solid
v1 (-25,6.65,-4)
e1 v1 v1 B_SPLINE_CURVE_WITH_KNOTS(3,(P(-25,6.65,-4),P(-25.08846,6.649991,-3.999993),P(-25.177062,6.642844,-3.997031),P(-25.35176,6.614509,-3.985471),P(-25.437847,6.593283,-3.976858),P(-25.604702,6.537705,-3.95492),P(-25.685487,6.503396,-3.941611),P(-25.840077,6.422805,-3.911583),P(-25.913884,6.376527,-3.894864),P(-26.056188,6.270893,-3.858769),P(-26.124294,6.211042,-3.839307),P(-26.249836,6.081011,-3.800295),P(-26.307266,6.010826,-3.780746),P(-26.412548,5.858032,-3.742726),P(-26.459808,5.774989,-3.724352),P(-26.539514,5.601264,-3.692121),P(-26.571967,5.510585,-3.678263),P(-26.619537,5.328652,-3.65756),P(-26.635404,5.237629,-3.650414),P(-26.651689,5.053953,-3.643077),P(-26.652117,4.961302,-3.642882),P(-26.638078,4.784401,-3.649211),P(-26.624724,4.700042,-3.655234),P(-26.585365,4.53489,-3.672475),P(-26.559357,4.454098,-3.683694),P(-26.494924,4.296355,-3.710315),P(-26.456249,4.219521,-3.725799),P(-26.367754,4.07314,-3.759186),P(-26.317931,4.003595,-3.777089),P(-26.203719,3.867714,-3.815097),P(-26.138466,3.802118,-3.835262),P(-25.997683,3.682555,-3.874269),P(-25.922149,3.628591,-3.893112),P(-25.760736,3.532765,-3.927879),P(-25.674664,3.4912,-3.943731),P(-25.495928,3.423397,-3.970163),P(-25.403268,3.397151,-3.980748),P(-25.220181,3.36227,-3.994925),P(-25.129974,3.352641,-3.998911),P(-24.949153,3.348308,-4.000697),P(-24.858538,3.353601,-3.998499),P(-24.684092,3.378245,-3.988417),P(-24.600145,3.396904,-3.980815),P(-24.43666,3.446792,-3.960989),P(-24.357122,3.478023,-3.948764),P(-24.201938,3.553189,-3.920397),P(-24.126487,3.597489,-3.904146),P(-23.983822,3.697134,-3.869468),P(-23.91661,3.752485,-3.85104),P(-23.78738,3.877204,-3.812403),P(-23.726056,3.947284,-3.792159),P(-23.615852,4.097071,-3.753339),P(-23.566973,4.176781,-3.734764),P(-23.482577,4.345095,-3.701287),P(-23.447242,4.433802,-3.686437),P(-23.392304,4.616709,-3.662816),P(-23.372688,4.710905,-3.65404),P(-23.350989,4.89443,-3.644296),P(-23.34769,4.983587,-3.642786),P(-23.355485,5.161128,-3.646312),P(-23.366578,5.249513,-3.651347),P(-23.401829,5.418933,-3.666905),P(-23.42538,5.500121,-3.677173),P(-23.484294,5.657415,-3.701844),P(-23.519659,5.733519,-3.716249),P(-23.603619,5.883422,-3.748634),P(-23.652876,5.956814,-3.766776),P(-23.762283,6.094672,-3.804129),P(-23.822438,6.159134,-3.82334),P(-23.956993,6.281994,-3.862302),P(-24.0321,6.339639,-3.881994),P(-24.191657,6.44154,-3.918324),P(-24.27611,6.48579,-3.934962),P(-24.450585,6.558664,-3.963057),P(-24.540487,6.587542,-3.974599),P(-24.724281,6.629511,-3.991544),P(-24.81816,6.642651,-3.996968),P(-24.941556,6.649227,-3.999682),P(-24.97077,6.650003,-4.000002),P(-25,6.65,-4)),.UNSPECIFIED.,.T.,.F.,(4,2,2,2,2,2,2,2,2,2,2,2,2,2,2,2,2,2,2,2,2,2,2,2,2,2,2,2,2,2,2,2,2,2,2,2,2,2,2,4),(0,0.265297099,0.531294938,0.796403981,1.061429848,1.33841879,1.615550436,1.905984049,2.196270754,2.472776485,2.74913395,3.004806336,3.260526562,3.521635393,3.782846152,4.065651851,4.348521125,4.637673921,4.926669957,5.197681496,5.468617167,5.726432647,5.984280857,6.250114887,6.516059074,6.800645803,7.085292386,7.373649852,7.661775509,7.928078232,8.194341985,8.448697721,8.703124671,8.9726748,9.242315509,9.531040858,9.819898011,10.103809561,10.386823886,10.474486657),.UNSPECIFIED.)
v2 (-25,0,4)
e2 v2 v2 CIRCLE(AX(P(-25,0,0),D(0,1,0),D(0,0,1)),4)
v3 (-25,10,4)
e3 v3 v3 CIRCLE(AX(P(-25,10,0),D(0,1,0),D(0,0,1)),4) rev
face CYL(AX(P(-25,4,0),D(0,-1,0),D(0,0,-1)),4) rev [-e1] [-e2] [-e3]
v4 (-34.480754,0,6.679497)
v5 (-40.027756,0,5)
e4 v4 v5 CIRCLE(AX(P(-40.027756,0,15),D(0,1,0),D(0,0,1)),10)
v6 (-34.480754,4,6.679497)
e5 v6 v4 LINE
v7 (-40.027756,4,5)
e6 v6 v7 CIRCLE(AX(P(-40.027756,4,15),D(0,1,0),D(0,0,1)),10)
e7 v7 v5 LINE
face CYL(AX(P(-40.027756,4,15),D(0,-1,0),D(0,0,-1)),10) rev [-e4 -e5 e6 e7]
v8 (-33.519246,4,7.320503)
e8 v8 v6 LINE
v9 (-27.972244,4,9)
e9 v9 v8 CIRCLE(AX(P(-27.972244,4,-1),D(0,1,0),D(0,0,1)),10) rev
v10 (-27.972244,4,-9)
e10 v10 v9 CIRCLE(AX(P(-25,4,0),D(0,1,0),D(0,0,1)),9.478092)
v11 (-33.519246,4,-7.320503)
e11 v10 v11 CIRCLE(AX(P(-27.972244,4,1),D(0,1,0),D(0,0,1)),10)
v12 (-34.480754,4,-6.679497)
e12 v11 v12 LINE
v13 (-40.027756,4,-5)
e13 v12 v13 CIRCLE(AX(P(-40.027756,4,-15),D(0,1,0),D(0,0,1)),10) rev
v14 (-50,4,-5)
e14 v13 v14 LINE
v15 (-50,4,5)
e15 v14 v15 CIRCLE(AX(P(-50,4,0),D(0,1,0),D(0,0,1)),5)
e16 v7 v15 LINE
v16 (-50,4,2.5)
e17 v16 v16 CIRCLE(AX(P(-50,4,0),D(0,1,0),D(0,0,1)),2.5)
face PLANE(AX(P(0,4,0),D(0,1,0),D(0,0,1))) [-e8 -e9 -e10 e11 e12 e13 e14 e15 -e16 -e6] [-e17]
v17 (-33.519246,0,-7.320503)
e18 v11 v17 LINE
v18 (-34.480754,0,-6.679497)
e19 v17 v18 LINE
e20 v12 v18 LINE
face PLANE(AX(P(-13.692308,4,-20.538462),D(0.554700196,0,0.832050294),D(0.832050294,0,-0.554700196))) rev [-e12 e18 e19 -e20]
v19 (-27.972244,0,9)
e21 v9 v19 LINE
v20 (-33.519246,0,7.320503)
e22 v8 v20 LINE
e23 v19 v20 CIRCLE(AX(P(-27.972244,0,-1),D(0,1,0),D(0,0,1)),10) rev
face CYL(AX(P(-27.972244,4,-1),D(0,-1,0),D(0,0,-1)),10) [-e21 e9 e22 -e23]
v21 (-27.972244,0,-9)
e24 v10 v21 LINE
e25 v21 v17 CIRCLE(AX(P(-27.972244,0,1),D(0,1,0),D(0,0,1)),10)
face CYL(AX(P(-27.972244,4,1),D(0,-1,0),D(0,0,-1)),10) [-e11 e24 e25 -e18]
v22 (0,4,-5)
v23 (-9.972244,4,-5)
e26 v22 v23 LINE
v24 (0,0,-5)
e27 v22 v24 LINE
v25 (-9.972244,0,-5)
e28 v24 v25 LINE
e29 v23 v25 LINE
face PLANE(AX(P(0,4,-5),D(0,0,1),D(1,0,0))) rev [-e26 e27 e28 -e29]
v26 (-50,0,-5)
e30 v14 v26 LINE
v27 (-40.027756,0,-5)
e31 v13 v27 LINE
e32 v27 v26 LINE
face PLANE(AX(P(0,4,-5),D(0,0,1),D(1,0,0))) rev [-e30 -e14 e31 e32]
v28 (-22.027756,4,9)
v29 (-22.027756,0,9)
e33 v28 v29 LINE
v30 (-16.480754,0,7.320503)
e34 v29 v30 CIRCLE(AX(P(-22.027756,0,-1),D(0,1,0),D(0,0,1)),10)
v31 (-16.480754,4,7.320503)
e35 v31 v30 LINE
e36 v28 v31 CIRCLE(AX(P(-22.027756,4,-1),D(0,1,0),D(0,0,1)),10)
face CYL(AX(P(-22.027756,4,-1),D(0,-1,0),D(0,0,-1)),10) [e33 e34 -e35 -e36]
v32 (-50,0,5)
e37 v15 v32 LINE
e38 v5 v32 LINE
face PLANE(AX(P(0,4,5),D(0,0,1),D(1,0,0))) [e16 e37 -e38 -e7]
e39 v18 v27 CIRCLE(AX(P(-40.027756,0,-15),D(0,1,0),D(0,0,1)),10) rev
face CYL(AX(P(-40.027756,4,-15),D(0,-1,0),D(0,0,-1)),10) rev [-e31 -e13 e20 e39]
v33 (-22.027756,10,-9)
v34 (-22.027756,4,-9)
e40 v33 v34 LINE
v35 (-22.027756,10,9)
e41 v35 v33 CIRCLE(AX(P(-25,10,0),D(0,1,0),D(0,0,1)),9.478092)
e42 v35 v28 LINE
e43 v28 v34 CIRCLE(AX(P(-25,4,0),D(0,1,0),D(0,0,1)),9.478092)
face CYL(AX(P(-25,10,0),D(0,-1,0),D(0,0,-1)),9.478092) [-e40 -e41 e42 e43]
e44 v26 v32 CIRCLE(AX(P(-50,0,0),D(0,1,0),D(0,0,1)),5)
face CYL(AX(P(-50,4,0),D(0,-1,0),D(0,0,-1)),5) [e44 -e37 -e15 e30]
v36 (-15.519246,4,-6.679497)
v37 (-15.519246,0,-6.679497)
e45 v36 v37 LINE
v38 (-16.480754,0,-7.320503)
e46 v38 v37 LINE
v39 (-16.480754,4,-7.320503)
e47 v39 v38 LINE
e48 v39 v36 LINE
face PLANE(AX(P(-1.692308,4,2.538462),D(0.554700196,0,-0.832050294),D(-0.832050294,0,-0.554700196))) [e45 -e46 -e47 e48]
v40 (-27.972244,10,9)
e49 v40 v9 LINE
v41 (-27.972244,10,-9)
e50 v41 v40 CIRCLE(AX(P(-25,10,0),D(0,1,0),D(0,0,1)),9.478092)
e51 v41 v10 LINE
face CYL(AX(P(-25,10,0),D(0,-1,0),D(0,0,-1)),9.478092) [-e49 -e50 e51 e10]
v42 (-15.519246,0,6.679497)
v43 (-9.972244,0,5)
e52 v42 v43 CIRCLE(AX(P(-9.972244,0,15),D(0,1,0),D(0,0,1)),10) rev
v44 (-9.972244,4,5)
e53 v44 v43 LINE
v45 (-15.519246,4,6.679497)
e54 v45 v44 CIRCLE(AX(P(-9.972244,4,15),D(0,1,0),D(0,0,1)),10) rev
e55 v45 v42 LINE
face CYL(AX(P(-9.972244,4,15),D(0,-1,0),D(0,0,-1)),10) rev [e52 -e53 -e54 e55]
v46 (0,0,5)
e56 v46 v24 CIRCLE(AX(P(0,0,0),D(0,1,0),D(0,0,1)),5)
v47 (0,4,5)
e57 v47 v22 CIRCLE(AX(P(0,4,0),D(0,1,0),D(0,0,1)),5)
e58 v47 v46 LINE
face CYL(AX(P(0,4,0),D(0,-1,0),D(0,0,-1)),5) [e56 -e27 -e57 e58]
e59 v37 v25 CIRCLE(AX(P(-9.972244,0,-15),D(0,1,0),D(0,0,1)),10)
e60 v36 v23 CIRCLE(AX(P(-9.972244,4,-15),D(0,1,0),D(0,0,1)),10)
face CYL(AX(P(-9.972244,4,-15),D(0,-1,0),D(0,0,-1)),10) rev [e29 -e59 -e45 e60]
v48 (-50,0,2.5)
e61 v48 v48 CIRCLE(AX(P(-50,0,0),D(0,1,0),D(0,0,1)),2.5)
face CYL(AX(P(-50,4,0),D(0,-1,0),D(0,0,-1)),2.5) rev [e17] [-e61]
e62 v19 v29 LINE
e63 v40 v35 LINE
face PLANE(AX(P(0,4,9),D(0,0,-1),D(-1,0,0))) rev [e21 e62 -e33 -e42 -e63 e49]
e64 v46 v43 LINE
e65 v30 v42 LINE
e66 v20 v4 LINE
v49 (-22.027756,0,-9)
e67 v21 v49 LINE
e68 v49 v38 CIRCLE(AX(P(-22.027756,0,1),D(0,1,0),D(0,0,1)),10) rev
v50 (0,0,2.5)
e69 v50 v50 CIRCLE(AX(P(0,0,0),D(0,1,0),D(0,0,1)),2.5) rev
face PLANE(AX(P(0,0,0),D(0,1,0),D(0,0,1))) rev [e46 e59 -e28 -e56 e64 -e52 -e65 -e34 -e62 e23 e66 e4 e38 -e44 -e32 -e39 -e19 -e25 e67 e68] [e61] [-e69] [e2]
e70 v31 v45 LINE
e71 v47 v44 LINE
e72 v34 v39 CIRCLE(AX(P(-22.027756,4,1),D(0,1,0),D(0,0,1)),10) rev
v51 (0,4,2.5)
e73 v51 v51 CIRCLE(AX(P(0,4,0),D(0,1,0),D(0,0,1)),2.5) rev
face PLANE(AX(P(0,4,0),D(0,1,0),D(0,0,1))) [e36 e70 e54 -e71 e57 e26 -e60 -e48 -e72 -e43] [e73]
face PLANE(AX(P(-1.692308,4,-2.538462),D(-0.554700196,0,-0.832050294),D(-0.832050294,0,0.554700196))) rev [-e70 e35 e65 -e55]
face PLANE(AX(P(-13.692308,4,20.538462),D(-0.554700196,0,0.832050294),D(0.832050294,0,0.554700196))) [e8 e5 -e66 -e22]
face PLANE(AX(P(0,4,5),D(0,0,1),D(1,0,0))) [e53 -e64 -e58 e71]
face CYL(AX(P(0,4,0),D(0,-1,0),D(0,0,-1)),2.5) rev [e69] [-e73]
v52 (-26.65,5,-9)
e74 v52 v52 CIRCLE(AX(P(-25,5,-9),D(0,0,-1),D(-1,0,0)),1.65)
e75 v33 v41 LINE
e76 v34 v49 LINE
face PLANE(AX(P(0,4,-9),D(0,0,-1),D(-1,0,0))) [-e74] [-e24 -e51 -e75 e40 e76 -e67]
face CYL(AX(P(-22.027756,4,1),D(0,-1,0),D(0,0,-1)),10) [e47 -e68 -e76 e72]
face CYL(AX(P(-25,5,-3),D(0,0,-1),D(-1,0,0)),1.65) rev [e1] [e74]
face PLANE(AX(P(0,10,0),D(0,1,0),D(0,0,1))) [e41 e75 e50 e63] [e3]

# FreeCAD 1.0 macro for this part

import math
import FreeCAD as App
import Part
import Sketcher
from FreeCAD import Vector
Q = App.Units.Quantity

doc = App.newDocument("Part")
body = doc.addObject("PartDesign::Body", "Body")

sketch1 = body.newObject("Sketcher::SketchObject", "Sketch")
sketch1.AttachmentSupport = (doc.getObject("XZ_Plane"), [""])
sketch1.MapMode = "FlatFace"
sketch1.addGeometry([
    Part.ArcOfCircle(Part.Circle(Vector(0, 0, 0), Vector(0, 0, 1), 5), math.radians(0), math.radians(90)),
    Part.ArcOfCircle(Part.Circle(Vector(0, 0, 0), Vector(0, 0, 1), 5), math.radians(-90), math.radians(0)),
    Part.LineSegment(Vector(0, -5, 0), Vector(-10, -5, 0)),
    Part.ArcOfCircle(Part.Circle(Vector(-10, -15, 0), Vector(0, 0, 1), 10), math.radians(90), math.radians(124)),
    Part.LineSegment(Vector(-15.5, -6.7, 0), Vector(-16.5, -7.3, 0)),
    Part.ArcOfCircle(Part.Circle(Vector(-22, 1, 0), Vector(0, 0, 1), 10), math.radians(-90), math.radians(-56)),
    Part.LineSegment(Vector(-22, -9, 0), Vector(-28, -9, 0)),
    Part.ArcOfCircle(Part.Circle(Vector(-28, 1, 0), Vector(0, 0, 1), 10), math.radians(-124), math.radians(-90)),
    Part.LineSegment(Vector(-33.5, -7.3, 0), Vector(-34.5, -6.7, 0)),
    Part.ArcOfCircle(Part.Circle(Vector(-40, -15, 0), Vector(0, 0, 1), 10), math.radians(56), math.radians(90)),
    Part.LineSegment(Vector(-40, -5, 0), Vector(-50, -5, 0)),
    Part.ArcOfCircle(Part.Circle(Vector(-50, 0, 0), Vector(0, 0, 1), 5), math.radians(180), math.radians(270)),
    Part.ArcOfCircle(Part.Circle(Vector(-50, 0, 0), Vector(0, 0, 1), 5), math.radians(90), math.radians(180)),
    Part.LineSegment(Vector(-50, 5, 0), Vector(-40, 5, 0)),
    Part.ArcOfCircle(Part.Circle(Vector(-40, 15, 0), Vector(0, 0, 1), 10), math.radians(-90), math.radians(-56)),
    Part.LineSegment(Vector(-34.5, 6.7, 0), Vector(-33.5, 7.3, 0)),
    Part.ArcOfCircle(Part.Circle(Vector(-28, -1, 0), Vector(0, 0, 1), 10), math.radians(90), math.radians(124)),
    Part.LineSegment(Vector(-28, 9, 0), Vector(-22, 9, 0)),
    Part.ArcOfCircle(Part.Circle(Vector(-22, -1, 0), Vector(0, 0, 1), 10), math.radians(56), math.radians(90)),
    Part.LineSegment(Vector(-16.5, 7.3, 0), Vector(-15.5, 6.7, 0)),
    Part.ArcOfCircle(Part.Circle(Vector(-10, 15, 0), Vector(0, 0, 1), 10), math.radians(-124), math.radians(-90)),
    Part.LineSegment(Vector(-10, 5, 0), Vector(0, 5, 0)),
    Part.Circle(Vector(0, 0, 0), Vector(0, 0, 1), 2.5),
    Part.Circle(Vector(-25, 0, 0), Vector(0, 0, 1), 4),
    Part.Circle(Vector(-50, 0, 0), Vector(0, 0, 1), 2.5),
], False)
sketch1.addConstraint([
    Sketcher.Constraint("Tangent", 0, 1, 1, 2),
    Sketcher.Constraint("Tangent", 1, 1, 2, 1),
    Sketcher.Constraint("Tangent", 2, 2, 3, 1),
    Sketcher.Constraint("Tangent", 3, 2, 4, 1),
    Sketcher.Constraint("Tangent", 4, 2, 5, 2),
    Sketcher.Constraint("Tangent", 5, 1, 6, 1),
    Sketcher.Constraint("Tangent", 6, 2, 7, 2),
    Sketcher.Constraint("Tangent", 7, 1, 8, 1),
    Sketcher.Constraint("Tangent", 8, 2, 9, 1),
    Sketcher.Constraint("Tangent", 9, 2, 10, 1),
    Sketcher.Constraint("Tangent", 10, 2, 11, 2),
    Sketcher.Constraint("Tangent", 11, 1, 12, 2),
    Sketcher.Constraint("Tangent", 12, 1, 13, 1),
    Sketcher.Constraint("Tangent", 13, 2, 14, 1),
    Sketcher.Constraint("Tangent", 14, 2, 15, 1),
    Sketcher.Constraint("Tangent", 15, 2, 16, 2),
    Sketcher.Constraint("Tangent", 16, 1, 17, 1),
    Sketcher.Constraint("Tangent", 17, 2, 18, 2),
    Sketcher.Constraint("Tangent", 18, 1, 19, 1),
    Sketcher.Constraint("Tangent", 19, 2, 20, 1),
    Sketcher.Constraint("Tangent", 20, 2, 21, 1),
    Sketcher.Constraint("Tangent", 21, 2, 0, 2),
    Sketcher.Constraint("Horizontal", 2),
    Sketcher.Constraint("Horizontal", 6),
    Sketcher.Constraint("Horizontal", 10),
    Sketcher.Constraint("Horizontal", 13),
    Sketcher.Constraint("Horizontal", 17),
    Sketcher.Constraint("Horizontal", 21),
    Sketcher.Constraint("Coincident", 0, 3, -1, 1),
    Sketcher.Constraint("Coincident", 22, 3, -1, 1),
    Sketcher.Constraint("Coincident", 24, 3, 11, 3),
    Sketcher.Constraint("Equal", 0, 1),
    Sketcher.Constraint("Equal", 3, 5),
    Sketcher.Constraint("Equal", 5, 7),
    Sketcher.Constraint("Equal", 7, 9),
    Sketcher.Constraint("Equal", 1, 11),
    Sketcher.Constraint("Equal", 11, 12),
    Sketcher.Constraint("Equal", 9, 14),
    Sketcher.Constraint("Equal", 14, 16),
    Sketcher.Constraint("Equal", 16, 18),
    Sketcher.Constraint("Equal", 18, 20),
    Sketcher.Constraint("Equal", 22, 24),
    Sketcher.Constraint("Symmetric", 9, 3, 14, 3, -1),
    Sketcher.Constraint("Symmetric", 7, 3, 16, 3, -1),
    Sketcher.Constraint("Symmetric", 4, 2, 18, 1, -1),
    Sketcher.Constraint("PointOnObject", 23, 3, -1),
    Sketcher.Constraint("PointOnObject", 0, 1, -1),
    Sketcher.Constraint("PointOnObject", 11, 1, -1),
    Sketcher.Constraint("Parallel", 4, 15),
    Sketcher.Constraint("Equal", 2, 10),
    Sketcher.Constraint("Diameter", 22, Q("5 mm")),
    Sketcher.Constraint("Diameter", 23, Q("8 mm")),
    Sketcher.Constraint("Radius", 0, Q("5 mm")),
    Sketcher.Constraint("Radius", 3, Q("10 mm")),
    Sketcher.Constraint("DistanceY", -1, 1, 5, 3, Q("1 mm")),
    Sketcher.Constraint("DistanceX", 11, 3, -1, 1, Q("50 mm")),
    Sketcher.Constraint("DistanceX", 23, 3, -1, 1, Q("25 mm")),
    Sketcher.Constraint("DistanceX", 7, 3, 3, 3, Q("18 mm")),
    Sketcher.Constraint("DistanceX", 3, 2, 2, 2, Q("5.547002 mm")),
])
pad1 = body.newObject("PartDesign::Pad", "Pad")
pad1.Profile = sketch1
pad1.Length = 4
pad1.Reversed = True

sketch2 = body.newObject("Sketcher::SketchObject", "Sketch001")
sketch2.AttachmentSupport = (doc.getObject("XZ_Plane"), [""])
sketch2.MapMode = "FlatFace"
sketch2.AttachmentOffset = App.Placement(Vector(0, 0, -4), App.Rotation())
sketch2.addGeometry([
    Part.ArcOfCircle(Part.Circle(Vector(-25, 0, 0), Vector(0, 0, 1), 9.5), math.radians(-72), math.radians(0)),
    Part.LineSegment(Vector(-22, -9, 0), Vector(-28, -9, 0)),
    Part.ArcOfCircle(Part.Circle(Vector(-25, 0, 0), Vector(0, 0, 1), 9.5), math.radians(108), math.radians(252)),
    Part.LineSegment(Vector(-28, 9, 0), Vector(-22, 9, 0)),
    Part.ArcOfCircle(Part.Circle(Vector(-25, 0, 0), Vector(0, 0, 1), 9.5), math.radians(0), math.radians(72)),
    Part.Circle(Vector(-25, 0, 0), Vector(0, 0, 1), 4),
], False)
sketch2.addConstraint([
    Sketcher.Constraint("Coincident", 0, 1, 1, 1),
    Sketcher.Constraint("Coincident", 1, 2, 2, 2),
    Sketcher.Constraint("Coincident", 2, 1, 3, 1),
    Sketcher.Constraint("Coincident", 3, 2, 4, 2),
    Sketcher.Constraint("Tangent", 4, 1, 0, 2),
    Sketcher.Constraint("Horizontal", 1),
    Sketcher.Constraint("Horizontal", 3),
    Sketcher.Constraint("Coincident", 2, 3, 0, 3),
    Sketcher.Constraint("Coincident", 5, 3, 0, 3),
    Sketcher.Constraint("Equal", 0, 2),
    Sketcher.Constraint("Equal", 2, 4),
    Sketcher.Constraint("Symmetric", 1, 2, 2, 1, -1),
    Sketcher.Constraint("PointOnObject", 4, 1, -1),
    Sketcher.Constraint("Diameter", 5, Q("8 mm")),
    Sketcher.Constraint("DistanceX", 0, 3, -1, 1, Q("25 mm")),
    Sketcher.Constraint("DistanceY", 0, 1, -1, 1, Q("9 mm")),
    Sketcher.Constraint("Radius", 0, Q("9.478092 mm")),
])
pad2 = body.newObject("PartDesign::Pad", "Pad001")
pad2.Profile = sketch2
pad2.Length = 6
pad2.Reversed = True

sketch3 = body.newObject("Sketcher::SketchObject", "Sketch002")
sketch3.AttachmentSupport = (doc.getObject("XY_Plane"), [""])
sketch3.MapMode = "FlatFace"
sketch3.AttachmentOffset = App.Placement(Vector(0, 0, -9), App.Rotation())
sketch3.addGeometry([
    Part.ArcOfCircle(Part.Circle(Vector(-25, 5, 0), Vector(0, 0, 1), 1.6), math.radians(90), math.radians(180)),
    Part.ArcOfCircle(Part.Circle(Vector(-25, 5, 0), Vector(0, 0, 1), 1.6), math.radians(-90), math.radians(90)),
    Part.ArcOfCircle(Part.Circle(Vector(-25, 5, 0), Vector(0, 0, 1), 1.6), math.radians(180), math.radians(270)),
], False)
sketch3.addConstraint([
    Sketcher.Constraint("Tangent", 0, 1, 1, 2),
    Sketcher.Constraint("Tangent", 1, 1, 2, 2),
    Sketcher.Constraint("Tangent", 2, 1, 0, 2),
    Sketcher.Constraint("Horizontal", 1, 3, 2, 1),
    Sketcher.Constraint("Vertical", 2, 3, 0, 1),
    Sketcher.Constraint("Vertical", 0, 1, 1, 1),
    Sketcher.Constraint("Radius", 0, Q("1.65 mm")),
    Sketcher.Constraint("DistanceX", 0, 3, -1, 1, Q("25 mm")),
    Sketcher.Constraint("DistanceY", -1, 1, 0, 3, Q("5 mm")),
])
pocket1 = body.newObject("PartDesign::Pocket", "Pocket")
pocket1.Profile = sketch3
pocket1.Length = 6
pocket1.Reversed = True

doc.recompute()
